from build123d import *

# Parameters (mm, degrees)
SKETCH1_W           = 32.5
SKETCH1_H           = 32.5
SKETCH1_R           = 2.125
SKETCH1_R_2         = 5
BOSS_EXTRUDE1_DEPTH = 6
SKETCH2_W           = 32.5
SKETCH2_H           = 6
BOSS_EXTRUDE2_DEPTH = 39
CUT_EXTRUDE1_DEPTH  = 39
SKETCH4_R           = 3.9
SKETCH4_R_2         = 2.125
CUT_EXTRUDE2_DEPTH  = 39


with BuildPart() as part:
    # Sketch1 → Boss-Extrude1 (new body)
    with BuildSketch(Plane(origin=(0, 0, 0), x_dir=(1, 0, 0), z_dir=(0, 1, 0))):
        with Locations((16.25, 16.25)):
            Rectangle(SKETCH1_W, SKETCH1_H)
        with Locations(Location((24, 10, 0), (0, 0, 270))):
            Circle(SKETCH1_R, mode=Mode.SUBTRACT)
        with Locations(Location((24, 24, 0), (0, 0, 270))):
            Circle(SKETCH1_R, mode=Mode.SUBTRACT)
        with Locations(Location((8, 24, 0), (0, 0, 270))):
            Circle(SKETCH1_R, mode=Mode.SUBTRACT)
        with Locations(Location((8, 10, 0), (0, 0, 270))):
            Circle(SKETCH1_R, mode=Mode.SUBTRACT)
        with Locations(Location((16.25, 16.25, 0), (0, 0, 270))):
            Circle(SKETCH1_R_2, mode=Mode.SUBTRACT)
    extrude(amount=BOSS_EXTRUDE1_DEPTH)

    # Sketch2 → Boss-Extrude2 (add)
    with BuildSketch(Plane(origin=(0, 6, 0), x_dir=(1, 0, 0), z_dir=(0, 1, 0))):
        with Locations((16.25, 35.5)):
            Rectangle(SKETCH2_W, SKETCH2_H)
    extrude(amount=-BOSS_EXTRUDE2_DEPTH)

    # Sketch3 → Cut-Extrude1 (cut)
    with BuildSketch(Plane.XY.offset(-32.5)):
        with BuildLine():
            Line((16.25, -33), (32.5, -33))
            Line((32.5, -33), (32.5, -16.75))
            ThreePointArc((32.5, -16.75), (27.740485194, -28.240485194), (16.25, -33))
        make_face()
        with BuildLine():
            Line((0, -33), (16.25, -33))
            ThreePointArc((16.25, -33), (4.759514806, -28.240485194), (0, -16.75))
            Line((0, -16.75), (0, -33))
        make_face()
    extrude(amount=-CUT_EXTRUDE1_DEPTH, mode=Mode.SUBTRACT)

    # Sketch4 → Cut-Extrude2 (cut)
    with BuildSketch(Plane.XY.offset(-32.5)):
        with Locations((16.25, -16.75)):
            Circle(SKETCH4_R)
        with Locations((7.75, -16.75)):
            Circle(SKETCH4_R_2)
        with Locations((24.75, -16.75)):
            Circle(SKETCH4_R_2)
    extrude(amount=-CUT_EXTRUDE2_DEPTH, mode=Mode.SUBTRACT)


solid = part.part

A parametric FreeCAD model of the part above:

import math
import FreeCAD as App
import Part
import Sketcher
from FreeCAD import Vector
Q = App.Units.Quantity


def add_polygon(sketch, points):
    """Adds a closed chain of lines whose ends are joined by coincident constraints."""
    first, n = sketch.GeometryCount, len(points)
    for a, b in zip(points, points[1:] + points[:1]):
        sketch.addGeometry(Part.LineSegment(App.Vector(*a, 0), App.Vector(*b, 0)), False)
    for i in range(n):
        sketch.addConstraint(Sketcher.Constraint("Coincident", first + i, 2, first + (i + 1) % n, 1))

doc = App.newDocument("Part")
body = doc.addObject("PartDesign::Body", "Body")

# Sketch on XZ plane
sketch1 = body.newObject("Sketcher::SketchObject", "Sketch")
sketch1.AttachmentSupport = (doc.getObject("XZ_Plane"), [""])
sketch1.MapMode = "FlatFace"
add_polygon(sketch1, [(0, -32.5), (0, 0), (32.5, 0), (32.5, -32.5)])  # lines 0-3
sketch1.addGeometry(Part.Circle(Vector(8, -10, 0), Vector(0, 0, 1), 2.1), False)  # 4
sketch1.addGeometry(Part.Circle(Vector(24, -10, 0), Vector(0, 0, 1), 2.1), False)  # 5
sketch1.addGeometry(Part.Circle(Vector(16.2, -16.2, 0), Vector(0, 0, 1), 5), False)  # 6
sketch1.addGeometry(Part.Circle(Vector(8, -24, 0), Vector(0, 0, 1), 2.1), False)  # 7
sketch1.addGeometry(Part.Circle(Vector(24, -24, 0), Vector(0, 0, 1), 2.1), False)  # 8
sketch1.addConstraint([
    Sketcher.Constraint("Vertical", 0),
    Sketcher.Constraint("Horizontal", 1),
    Sketcher.Constraint("Vertical", 2),
    Sketcher.Constraint("Horizontal", 3),
    Sketcher.Constraint("Coincident", 0, 2, -1, 1),
    Sketcher.Constraint("Equal", 4, 5),
    Sketcher.Constraint("Equal", 5, 7),
    Sketcher.Constraint("Equal", 7, 8),
    Sketcher.Constraint("Horizontal", 4, 3, 5, 3),
    Sketcher.Constraint("Horizontal", 7, 3, 8, 3),
    Sketcher.Constraint("Vertical", 4, 3, 7, 3),
    Sketcher.Constraint("Vertical", 5, 3, 8, 3),
    Sketcher.Constraint("Equal", 3, 0),
    Sketcher.Constraint("Diameter", 6, Q("10 mm")),
    Sketcher.Constraint("Diameter", 4, Q("4.25 mm")),
    Sketcher.Constraint("DistanceX", 1, 1, 1, 2, Q("32.5 mm")),
    Sketcher.Constraint("DistanceX", -1, 1, 4, 3, Q("8 mm")),
    Sketcher.Constraint("DistanceY", 4, 3, -1, 1, Q("10 mm")),
    Sketcher.Constraint("DistanceX", -1, 1, 5, 3, Q("24 mm")),
    Sketcher.Constraint("DistanceY", 7, 3, -1, 1, Q("24 mm")),
    Sketcher.Constraint("DistanceX", -1, 1, 6, 3, Q("16.25 mm")),
    Sketcher.Constraint("DistanceY", 6, 3, -1, 1, Q("16.25 mm")),
])
pad1 = body.newObject("PartDesign::Pad", "Pad")
pad1.Profile = sketch1
pad1.Length = 6
pad1.Reversed = True

# Sketch on XZ plane
sketch2 = body.newObject("Sketcher::SketchObject", "Sketch001")
sketch2.AttachmentSupport = (doc.getObject("XZ_Plane"), [""])
sketch2.MapMode = "FlatFace"
sketch2.AttachmentOffset = App.Placement(Vector(0, 0, -6), App.Rotation())
add_polygon(sketch2, [(0, -38), (0, -32), (32, -32), (32, -38)])  # lines 0-3
sketch2.addConstraint([
    Sketcher.Constraint("Vertical", 0),
    Sketcher.Constraint("Horizontal", 1),
    Sketcher.Constraint("Vertical", 2),
    Sketcher.Constraint("Horizontal", 3),
    Sketcher.Constraint("PointOnObject", 0, 2, -2),
    Sketcher.Constraint("DistanceY", 0, 1, 0, 2, Q("6 mm")),
    Sketcher.Constraint("DistanceX", 1, 1, 1, 2, Q("32.5 mm")),
    Sketcher.Constraint("DistanceY", 0, 2, -1, 1, Q("32.5 mm")),
])
pad2 = body.newObject("PartDesign::Pad", "Pad001")
pad2.Profile = sketch2
pad2.Length = 39

# Sketch on XY plane
sketch3 = body.newObject("Sketcher::SketchObject", "Sketch002")
sketch3.AttachmentSupport = (doc.getObject("XY_Plane"), [""])
sketch3.MapMode = "FlatFace"
sketch3.AttachmentOffset = App.Placement(Vector(0, 0, -32.5), App.Rotation())
sketch3.addGeometry([
    Part.LineSegment(Vector(16, -33, 0), Vector(32, -33, 0)),  # 0
    Part.LineSegment(Vector(32, -33, 0), Vector(32, -17, 0)),  # 1
    Part.ArcOfCircle(Part.Circle(Vector(16, -17, 0), Vector(0, 0, 1), 16), math.radians(-90), math.radians(0)),  # 2
    Part.LineSegment(Vector(0, -33, 0), Vector(16, -33, 0)),  # 3
    Part.ArcOfCircle(Part.Circle(Vector(16, -17, 0), Vector(0, 0, 1), 16), math.radians(-180), math.radians(-90)),  # 4
    Part.LineSegment(Vector(0, -17, 0), Vector(0, -33, 0)),  # 5
], False)
sketch3.addConstraint([
    Sketcher.Constraint("Coincident", 0, 2, 1, 1),
    Sketcher.Constraint("Tangent", 1, 2, 2, 2),
    Sketcher.Constraint("Tangent", 2, 1, 0, 1),
    Sketcher.Constraint("Tangent", 3, 2, 4, 2),
    Sketcher.Constraint("Tangent", 4, 1, 5, 1),
    Sketcher.Constraint("Coincident", 5, 2, 3, 1),
    Sketcher.Constraint("Horizontal", 0),
    Sketcher.Constraint("Vertical", 1),
    Sketcher.Constraint("Horizontal", 3),
    Sketcher.Constraint("Vertical", 5),
    Sketcher.Constraint("Coincident", 4, 3, 2, 3),
    Sketcher.Constraint("Equal", 2, 4),
    Sketcher.Constraint("PointOnObject", 4, 1, -2),
    Sketcher.Constraint("Radius", 2, Q("16.25 mm")),
    Sketcher.Constraint("DistanceY", 0, 2, -1, 1, Q("33 mm")),
])
pocket1 = body.newObject("PartDesign::Pocket", "Pocket")
pocket1.Profile = sketch3
pocket1.Length = 39

# Sketch on XY plane
sketch4 = body.newObject("Sketcher::SketchObject", "Sketch003")
sketch4.AttachmentSupport = (doc.getObject("XY_Plane"), [""])
sketch4.MapMode = "FlatFace"
sketch4.AttachmentOffset = App.Placement(Vector(0, 0, -32.5), App.Rotation())
sketch4.addGeometry([
    Part.Circle(Vector(16.2, -16.8, 0), Vector(0, 0, 1), 3.9),
    Part.Circle(Vector(7.8, -16.8, 0), Vector(0, 0, 1), 2.1),
    Part.Circle(Vector(24.8, -16.8, 0), Vector(0, 0, 1), 2.1),
], False)
sketch4.addConstraint([
    Sketcher.Constraint("Equal", 1, 2),
    Sketcher.Constraint("Horizontal", 0, 3, 1, 3),
    Sketcher.Constraint("Horizontal", 1, 3, 2, 3),
    Sketcher.Constraint("Diameter", 0, Q("7.8 mm")),
    Sketcher.Constraint("Diameter", 1, Q("4.25 mm")),
    Sketcher.Constraint("DistanceX", 1, 3, 2, 3, Q("17 mm")),
    Sketcher.Constraint("DistanceX", 1, 3, 0, 3, Q("8.5 mm")),
    Sketcher.Constraint("DistanceX", -1, 1, 0, 3, Q("16.25 mm")),
    Sketcher.Constraint("DistanceY", 0, 3, -1, 1, Q("16.75 mm")),
])
pocket2 = body.newObject("PartDesign::Pocket", "Pocket001")
pocket2.Profile = sketch4
pocket2.Length = 39

doc.recompute()
